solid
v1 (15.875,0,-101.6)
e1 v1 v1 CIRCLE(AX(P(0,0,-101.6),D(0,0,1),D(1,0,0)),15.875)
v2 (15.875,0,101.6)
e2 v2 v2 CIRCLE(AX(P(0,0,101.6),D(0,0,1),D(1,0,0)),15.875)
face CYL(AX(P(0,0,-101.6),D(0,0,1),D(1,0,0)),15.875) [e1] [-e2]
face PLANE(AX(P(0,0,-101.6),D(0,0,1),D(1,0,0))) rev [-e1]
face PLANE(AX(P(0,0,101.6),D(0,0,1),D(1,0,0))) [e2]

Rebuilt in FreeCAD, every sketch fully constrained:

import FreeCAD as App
import Part
import Sketcher

V = App.Vector
Q = App.Units.Quantity

doc = App.newDocument("Part")
body = doc.addObject("PartDesign::Body", "Body")

sketch1 = body.newObject("Sketcher::SketchObject", "Sketch")
sketch1.AttachmentSupport = (doc.getObject("XY_Plane"), [""])
sketch1.MapMode = "FlatFace"
sketch1.addGeometry(Part.Circle(V(0, 0, 0), V(0, 0, 1), 16), False)
sketch1.addConstraint([
    Sketcher.Constraint("Coincident", 0, 3, -1, 1),
    Sketcher.Constraint("Diameter", 0, Q("1.25 in")),
])
pad1 = body.newObject("PartDesign::Pad", "Pad")
pad1.Profile = sketch1
pad1.Length = Q("8 in")
pad1.Midplane = True

doc.recompute()
